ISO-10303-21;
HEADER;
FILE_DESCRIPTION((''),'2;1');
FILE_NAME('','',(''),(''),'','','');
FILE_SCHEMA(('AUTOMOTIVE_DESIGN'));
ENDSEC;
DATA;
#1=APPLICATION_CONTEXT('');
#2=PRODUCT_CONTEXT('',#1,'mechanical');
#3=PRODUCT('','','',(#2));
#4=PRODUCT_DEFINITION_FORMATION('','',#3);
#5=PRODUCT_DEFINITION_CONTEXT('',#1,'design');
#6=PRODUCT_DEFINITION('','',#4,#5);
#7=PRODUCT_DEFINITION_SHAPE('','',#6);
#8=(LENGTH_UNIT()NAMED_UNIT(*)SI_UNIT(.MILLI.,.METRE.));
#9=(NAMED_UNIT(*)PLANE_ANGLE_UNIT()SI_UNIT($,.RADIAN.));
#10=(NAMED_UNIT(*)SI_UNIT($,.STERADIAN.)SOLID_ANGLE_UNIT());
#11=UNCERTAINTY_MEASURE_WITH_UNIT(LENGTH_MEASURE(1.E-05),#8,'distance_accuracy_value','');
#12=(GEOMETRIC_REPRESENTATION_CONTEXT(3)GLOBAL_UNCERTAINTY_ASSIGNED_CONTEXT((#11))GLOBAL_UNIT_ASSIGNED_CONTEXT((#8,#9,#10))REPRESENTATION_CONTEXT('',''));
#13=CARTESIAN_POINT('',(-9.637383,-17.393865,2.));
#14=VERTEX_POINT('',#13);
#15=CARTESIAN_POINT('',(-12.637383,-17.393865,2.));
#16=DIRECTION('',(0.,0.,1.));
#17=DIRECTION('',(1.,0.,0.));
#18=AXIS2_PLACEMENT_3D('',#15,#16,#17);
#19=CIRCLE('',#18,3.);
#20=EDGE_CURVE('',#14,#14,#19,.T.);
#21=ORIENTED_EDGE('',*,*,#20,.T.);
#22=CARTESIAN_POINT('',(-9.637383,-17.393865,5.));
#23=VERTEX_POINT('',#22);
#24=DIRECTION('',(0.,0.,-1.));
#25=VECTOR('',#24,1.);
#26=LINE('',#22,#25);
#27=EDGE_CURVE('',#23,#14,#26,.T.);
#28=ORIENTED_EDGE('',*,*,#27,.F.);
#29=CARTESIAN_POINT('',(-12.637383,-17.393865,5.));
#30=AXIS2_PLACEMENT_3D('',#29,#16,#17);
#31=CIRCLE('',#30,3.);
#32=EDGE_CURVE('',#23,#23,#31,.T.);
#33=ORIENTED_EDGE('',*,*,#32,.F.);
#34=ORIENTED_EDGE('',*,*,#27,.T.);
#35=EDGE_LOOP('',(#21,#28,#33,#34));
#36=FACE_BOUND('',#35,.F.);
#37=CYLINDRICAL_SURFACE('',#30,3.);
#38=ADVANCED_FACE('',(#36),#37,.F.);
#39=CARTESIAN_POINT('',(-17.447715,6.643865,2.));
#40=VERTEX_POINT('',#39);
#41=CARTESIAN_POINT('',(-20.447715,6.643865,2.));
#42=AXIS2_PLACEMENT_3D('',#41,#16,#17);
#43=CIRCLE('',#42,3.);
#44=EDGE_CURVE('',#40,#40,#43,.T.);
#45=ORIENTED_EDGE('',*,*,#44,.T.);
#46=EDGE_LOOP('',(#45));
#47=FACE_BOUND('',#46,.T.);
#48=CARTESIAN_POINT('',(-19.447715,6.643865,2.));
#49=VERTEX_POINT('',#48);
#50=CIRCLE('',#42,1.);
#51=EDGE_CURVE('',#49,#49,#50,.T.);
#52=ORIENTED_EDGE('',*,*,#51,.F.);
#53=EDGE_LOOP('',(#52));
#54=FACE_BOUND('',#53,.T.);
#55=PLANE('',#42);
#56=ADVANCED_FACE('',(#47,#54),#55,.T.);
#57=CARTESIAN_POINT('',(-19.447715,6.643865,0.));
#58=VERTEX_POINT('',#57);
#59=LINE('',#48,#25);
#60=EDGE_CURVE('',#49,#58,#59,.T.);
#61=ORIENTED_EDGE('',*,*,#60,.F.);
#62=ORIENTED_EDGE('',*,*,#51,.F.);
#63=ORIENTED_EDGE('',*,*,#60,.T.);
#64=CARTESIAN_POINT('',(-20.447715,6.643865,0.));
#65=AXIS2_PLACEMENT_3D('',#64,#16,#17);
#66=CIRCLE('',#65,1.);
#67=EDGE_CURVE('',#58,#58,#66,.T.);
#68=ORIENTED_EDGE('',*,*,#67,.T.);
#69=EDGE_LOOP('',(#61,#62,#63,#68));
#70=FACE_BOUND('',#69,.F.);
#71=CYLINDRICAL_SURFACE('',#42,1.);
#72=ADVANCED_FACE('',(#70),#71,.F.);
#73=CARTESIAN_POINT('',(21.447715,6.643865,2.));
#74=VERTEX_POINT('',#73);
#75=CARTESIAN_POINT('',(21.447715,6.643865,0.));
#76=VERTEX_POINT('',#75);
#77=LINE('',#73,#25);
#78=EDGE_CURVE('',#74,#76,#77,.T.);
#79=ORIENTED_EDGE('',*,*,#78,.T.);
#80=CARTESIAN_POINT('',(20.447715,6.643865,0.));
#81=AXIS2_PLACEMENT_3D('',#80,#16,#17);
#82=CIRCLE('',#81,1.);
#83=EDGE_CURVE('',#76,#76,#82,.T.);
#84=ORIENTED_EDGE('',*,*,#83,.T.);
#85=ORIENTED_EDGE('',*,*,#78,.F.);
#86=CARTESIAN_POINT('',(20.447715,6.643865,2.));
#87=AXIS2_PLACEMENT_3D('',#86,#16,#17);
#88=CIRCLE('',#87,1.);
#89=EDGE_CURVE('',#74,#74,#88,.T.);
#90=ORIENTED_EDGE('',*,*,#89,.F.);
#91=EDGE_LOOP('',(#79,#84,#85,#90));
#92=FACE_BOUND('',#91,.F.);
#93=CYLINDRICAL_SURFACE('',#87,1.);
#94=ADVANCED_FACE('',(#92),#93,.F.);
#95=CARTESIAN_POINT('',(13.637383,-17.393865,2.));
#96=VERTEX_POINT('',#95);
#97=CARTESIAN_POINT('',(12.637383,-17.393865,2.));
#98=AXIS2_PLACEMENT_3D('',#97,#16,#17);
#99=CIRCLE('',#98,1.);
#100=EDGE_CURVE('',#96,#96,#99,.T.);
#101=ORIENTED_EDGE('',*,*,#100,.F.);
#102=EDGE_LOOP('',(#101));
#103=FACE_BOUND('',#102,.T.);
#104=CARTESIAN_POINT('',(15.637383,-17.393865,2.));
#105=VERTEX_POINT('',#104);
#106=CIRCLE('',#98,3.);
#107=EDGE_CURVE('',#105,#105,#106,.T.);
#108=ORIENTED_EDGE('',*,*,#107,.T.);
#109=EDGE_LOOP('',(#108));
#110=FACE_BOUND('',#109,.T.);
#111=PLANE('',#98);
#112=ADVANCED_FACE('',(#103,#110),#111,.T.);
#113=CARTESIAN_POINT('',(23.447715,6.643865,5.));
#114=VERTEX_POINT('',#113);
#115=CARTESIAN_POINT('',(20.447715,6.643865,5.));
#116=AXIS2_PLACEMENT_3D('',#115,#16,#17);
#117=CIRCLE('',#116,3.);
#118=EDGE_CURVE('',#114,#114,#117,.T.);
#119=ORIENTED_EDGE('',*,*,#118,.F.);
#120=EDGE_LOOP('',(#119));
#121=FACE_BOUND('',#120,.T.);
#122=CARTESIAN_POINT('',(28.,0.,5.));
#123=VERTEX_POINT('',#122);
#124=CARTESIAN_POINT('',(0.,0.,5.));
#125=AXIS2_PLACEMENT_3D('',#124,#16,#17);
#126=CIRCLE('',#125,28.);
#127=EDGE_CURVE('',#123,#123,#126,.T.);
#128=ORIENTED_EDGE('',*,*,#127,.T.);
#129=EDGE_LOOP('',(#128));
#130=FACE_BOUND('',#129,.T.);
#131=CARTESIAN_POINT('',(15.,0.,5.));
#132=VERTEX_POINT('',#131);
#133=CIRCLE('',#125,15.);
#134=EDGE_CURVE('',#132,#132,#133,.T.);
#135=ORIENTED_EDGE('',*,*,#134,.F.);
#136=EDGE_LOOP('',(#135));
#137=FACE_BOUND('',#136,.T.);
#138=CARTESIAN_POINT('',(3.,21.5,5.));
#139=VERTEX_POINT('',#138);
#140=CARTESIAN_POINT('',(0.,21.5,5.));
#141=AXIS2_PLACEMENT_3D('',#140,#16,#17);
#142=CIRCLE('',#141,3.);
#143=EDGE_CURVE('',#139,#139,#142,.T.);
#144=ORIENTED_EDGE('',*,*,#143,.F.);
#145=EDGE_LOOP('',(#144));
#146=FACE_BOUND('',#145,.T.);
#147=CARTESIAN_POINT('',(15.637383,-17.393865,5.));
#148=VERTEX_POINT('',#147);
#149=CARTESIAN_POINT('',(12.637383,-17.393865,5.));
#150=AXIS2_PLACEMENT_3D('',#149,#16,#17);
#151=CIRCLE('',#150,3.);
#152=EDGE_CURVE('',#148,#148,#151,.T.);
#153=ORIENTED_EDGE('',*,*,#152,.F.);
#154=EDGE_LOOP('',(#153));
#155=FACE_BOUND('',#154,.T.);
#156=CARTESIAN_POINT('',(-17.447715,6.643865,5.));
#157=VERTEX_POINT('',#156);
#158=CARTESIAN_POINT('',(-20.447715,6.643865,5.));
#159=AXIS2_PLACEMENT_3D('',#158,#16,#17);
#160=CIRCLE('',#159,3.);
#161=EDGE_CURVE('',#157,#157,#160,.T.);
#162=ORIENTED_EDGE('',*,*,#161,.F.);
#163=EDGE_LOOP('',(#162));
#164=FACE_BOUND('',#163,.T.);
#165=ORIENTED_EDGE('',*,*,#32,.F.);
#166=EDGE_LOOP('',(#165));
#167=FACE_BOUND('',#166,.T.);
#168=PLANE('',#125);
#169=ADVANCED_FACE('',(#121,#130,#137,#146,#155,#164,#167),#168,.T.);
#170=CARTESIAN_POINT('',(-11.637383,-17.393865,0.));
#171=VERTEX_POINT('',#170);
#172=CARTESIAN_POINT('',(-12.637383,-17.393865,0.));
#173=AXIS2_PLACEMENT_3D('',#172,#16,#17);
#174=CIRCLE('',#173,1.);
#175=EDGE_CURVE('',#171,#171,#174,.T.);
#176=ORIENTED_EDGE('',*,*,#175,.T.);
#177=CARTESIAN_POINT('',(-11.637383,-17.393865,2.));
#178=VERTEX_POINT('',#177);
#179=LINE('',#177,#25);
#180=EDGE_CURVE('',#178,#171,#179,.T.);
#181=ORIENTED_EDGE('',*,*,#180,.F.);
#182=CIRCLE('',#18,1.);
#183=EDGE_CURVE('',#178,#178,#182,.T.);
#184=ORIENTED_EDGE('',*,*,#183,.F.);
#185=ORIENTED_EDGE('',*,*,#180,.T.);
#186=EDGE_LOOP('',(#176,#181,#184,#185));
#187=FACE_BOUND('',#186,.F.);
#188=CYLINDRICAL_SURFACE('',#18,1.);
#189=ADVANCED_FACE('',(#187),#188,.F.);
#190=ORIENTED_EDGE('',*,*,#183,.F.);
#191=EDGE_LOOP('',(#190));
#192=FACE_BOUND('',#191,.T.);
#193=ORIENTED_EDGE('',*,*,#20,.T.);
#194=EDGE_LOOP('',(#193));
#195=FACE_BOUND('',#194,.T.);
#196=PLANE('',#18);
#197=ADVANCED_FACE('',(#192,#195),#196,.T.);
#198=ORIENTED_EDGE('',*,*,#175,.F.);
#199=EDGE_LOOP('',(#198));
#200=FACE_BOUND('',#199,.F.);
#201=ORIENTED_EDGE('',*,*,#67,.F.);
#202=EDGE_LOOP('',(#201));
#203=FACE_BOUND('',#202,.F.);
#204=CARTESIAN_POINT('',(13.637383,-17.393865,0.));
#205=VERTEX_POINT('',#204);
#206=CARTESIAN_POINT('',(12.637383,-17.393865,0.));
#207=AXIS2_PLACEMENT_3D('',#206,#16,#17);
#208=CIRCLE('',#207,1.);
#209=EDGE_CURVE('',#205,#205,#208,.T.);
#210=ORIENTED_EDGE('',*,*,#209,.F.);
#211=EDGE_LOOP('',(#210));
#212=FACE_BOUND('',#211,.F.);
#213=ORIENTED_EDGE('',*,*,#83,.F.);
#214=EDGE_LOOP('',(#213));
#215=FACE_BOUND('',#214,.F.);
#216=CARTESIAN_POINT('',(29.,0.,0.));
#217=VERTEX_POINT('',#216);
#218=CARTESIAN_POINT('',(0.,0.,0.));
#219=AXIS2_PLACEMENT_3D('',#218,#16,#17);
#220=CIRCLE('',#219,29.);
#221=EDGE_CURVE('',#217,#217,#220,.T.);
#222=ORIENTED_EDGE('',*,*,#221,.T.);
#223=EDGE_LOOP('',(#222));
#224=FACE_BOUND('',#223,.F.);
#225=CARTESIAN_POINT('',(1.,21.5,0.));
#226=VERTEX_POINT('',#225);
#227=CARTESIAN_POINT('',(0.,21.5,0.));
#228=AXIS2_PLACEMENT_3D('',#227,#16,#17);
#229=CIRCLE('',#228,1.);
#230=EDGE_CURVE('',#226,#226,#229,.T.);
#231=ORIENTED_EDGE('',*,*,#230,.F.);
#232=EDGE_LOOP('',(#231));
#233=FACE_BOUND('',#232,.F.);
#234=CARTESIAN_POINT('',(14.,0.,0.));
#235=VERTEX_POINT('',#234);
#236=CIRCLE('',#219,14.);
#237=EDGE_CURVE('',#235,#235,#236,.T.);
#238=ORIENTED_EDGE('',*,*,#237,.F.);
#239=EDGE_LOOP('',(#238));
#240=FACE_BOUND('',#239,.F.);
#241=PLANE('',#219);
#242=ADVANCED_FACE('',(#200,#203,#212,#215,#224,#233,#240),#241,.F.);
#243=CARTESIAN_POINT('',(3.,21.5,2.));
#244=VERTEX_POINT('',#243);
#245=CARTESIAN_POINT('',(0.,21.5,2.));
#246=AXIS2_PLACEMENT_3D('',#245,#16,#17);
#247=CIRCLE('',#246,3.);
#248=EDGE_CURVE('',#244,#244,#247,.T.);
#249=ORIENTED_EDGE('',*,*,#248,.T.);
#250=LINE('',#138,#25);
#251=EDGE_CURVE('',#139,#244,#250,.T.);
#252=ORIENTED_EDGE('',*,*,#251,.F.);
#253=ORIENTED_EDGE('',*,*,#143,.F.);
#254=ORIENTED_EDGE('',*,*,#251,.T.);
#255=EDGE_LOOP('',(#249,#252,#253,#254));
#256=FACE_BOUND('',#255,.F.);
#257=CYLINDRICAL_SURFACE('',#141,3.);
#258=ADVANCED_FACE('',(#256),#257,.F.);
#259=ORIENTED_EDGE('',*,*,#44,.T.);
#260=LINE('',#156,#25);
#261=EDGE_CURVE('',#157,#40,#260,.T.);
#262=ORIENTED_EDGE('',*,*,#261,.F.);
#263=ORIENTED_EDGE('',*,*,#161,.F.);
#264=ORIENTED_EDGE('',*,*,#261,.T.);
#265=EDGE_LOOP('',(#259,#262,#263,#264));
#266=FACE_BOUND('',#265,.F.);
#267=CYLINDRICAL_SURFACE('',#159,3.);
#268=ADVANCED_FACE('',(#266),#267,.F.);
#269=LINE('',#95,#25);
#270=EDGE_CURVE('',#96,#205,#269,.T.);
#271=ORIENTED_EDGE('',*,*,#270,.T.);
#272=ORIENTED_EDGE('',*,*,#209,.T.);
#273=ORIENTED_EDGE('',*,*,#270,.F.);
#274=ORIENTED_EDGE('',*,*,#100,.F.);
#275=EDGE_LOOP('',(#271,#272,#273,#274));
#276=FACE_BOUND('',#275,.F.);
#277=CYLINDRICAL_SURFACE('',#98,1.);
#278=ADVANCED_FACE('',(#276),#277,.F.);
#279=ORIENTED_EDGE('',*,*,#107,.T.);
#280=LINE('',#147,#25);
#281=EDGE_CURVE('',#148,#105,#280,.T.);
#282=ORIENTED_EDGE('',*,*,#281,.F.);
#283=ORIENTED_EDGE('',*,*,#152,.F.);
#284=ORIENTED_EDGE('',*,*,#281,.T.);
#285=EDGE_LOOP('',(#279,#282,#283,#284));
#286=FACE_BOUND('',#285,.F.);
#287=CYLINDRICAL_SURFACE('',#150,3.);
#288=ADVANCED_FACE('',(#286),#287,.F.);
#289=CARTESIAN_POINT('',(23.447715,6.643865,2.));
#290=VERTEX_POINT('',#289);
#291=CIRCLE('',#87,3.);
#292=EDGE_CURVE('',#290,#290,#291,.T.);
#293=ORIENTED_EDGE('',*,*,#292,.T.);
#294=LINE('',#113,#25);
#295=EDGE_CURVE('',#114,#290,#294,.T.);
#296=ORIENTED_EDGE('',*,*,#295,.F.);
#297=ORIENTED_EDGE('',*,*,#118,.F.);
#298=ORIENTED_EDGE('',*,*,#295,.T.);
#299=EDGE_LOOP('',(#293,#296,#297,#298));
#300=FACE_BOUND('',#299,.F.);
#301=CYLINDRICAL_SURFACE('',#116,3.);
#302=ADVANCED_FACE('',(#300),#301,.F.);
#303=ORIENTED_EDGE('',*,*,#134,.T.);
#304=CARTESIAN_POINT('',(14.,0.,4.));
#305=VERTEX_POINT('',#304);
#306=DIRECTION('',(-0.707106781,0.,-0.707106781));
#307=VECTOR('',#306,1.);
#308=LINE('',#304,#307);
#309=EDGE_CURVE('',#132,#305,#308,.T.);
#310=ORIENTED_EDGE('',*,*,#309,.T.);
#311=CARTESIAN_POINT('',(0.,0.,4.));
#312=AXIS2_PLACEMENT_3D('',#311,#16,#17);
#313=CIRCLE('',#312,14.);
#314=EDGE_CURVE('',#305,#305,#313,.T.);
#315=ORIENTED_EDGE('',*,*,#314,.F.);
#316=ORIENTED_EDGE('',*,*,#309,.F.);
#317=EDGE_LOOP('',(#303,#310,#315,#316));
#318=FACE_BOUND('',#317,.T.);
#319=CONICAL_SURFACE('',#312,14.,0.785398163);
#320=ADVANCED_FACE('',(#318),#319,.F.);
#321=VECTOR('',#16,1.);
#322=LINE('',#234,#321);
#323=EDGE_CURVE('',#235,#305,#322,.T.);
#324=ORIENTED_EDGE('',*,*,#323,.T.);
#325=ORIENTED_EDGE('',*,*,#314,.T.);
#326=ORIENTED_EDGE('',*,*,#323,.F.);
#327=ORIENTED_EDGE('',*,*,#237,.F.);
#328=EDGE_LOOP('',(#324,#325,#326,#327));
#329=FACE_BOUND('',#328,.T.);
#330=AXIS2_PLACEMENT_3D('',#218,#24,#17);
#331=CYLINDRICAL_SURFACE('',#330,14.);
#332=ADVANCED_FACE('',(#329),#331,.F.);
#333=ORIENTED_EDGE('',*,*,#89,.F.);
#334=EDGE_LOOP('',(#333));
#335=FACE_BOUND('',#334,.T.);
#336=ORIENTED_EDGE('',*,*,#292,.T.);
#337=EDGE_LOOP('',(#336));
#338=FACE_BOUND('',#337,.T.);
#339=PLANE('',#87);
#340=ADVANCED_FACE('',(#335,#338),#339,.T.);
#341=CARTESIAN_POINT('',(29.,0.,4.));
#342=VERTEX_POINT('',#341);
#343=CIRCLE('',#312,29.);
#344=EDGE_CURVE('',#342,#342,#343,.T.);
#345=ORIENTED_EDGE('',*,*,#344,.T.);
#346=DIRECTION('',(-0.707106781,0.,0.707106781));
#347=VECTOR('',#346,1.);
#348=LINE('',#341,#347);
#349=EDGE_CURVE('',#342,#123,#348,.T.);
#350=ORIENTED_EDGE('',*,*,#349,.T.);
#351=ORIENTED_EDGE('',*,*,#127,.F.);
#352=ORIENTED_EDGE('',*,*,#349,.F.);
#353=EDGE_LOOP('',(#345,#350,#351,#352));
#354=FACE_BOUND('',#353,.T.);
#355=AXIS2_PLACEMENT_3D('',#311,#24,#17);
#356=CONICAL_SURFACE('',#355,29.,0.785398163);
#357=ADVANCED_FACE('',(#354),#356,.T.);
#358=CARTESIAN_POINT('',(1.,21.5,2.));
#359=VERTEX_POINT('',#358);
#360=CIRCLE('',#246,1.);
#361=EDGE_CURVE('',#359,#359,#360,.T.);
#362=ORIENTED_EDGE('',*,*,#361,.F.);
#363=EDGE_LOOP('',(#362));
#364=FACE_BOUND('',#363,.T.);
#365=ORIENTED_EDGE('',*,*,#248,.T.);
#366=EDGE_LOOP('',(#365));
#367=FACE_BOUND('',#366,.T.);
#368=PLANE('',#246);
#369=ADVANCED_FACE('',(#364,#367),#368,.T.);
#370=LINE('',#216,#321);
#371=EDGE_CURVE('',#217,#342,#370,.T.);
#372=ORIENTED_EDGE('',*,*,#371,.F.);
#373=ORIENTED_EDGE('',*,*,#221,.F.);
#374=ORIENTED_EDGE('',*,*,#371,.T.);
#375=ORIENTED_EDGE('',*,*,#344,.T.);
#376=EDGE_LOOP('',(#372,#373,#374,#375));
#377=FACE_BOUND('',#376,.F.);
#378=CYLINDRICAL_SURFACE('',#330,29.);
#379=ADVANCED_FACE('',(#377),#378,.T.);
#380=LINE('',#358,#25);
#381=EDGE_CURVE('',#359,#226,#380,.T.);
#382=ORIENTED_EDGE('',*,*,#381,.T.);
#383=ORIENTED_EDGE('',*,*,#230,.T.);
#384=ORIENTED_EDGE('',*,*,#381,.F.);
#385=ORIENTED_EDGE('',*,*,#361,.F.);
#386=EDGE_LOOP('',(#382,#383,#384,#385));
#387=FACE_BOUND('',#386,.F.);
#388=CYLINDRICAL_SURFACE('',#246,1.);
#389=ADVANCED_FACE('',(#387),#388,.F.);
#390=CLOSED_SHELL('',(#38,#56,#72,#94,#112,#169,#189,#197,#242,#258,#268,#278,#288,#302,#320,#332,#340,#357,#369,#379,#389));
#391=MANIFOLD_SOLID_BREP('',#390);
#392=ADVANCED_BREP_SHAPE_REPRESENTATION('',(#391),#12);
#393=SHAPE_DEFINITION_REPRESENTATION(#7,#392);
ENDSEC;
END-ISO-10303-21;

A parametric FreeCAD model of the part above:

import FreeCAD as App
import Part
import Sketcher


def edges_at(feature, points):
    """Names of the edges that pass closest to the given points."""
    edges = feature.Shape.Edges
    near = lambda p: min(range(len(edges)), key=lambda i: edges[i].distToShape(Part.Vertex(*p))[0])
    return sorted({f"Edge{near(p) + 1}" for p in points})

doc = App.newDocument("Part")
body = doc.addObject("PartDesign::Body", "Body")

# Sketch on XY plane
sketch1 = body.newObject("Sketcher::SketchObject", "Sketch")
sketch1.AttachmentSupport = (doc.getObject("XY_Plane"), [""])
sketch1.MapMode = "FlatFace"
sketch1.addGeometry(Part.Circle(App.Vector(0, 0, 0), App.Vector(0, 0, 1), 29), False)
sketch1.addGeometry(Part.Circle(App.Vector(0, 0, 0), App.Vector(0, 0, 1), 14), False)
sketch1.addConstraint(Sketcher.Constraint("Coincident", 0, 3, -1, 1))
sketch1.addConstraint(Sketcher.Constraint("Coincident", 1, 3, -1, 1))
sketch1.addConstraint(Sketcher.Constraint("Diameter", 0, 58.0))
sketch1.addConstraint(Sketcher.Constraint("Diameter", 1, 28.0))
pad1 = body.newObject("PartDesign::Pad", "Pad")
pad1.Profile = sketch1
pad1.Length = 5

# Sketch on XY plane
sketch2 = body.newObject("Sketcher::SketchObject", "Sketch001")
sketch2.AttachmentSupport = (doc.getObject("XY_Plane"), [""])
sketch2.MapMode = "FlatFace"
sketch2.AttachmentOffset = App.Placement(App.Vector(0, 0, 5), App.Rotation())
sketch2.addGeometry(Part.Circle(App.Vector(0, 21.5, 0), App.Vector(0, 0, 1), 3), False)
sketch2.addGeometry(Part.Circle(App.Vector(-20.4, 6.6, 0), App.Vector(0, 0, 1), 3), False)
sketch2.addGeometry(Part.Circle(App.Vector(-12.6, -17.4, 0), App.Vector(0, 0, 1), 3), False)
sketch2.addGeometry(Part.Circle(App.Vector(12.6, -17.4, 0), App.Vector(0, 0, 1), 3), False)
sketch2.addGeometry(Part.Circle(App.Vector(20.4, 6.6, 0), App.Vector(0, 0, 1), 3), False)
sketch2.addConstraint(Sketcher.Constraint("Equal", 0, 1))
sketch2.addConstraint(Sketcher.Constraint("Equal", 1, 2))
sketch2.addConstraint(Sketcher.Constraint("Equal", 2, 3))
sketch2.addConstraint(Sketcher.Constraint("Equal", 3, 4))
sketch2.addConstraint(Sketcher.Constraint("Symmetric", 2, 3, 3, 3, -2))
sketch2.addConstraint(Sketcher.Constraint("Symmetric", 1, 3, 4, 3, -2))
sketch2.addConstraint(Sketcher.Constraint("PointOnObject", 0, 3, -2))
sketch2.addConstraint(Sketcher.Constraint("Diameter", 0, 6.0))
sketch2.addConstraint(Sketcher.Constraint("DistanceY", -1, 1, 0, 3, 21.5))
sketch2.addConstraint(Sketcher.Constraint("DistanceX", 1, 3, 3, 3, 33.085098))
sketch2.addConstraint(Sketcher.Constraint("DistanceX", 1, 3, 2, 3, 7.810332))
sketch2.addConstraint(Sketcher.Constraint("DistanceY", 2, 3, 1, 3, 24.03773))
sketch2.addConstraint(Sketcher.Constraint("DistanceY", -1, 1, 1, 3, 6.643865))
pocket1 = body.newObject("PartDesign::Pocket", "Pocket")
pocket1.Profile = sketch2
pocket1.Length = 3

# Sketch on XY plane
sketch3 = body.newObject("Sketcher::SketchObject", "Sketch002")
sketch3.AttachmentSupport = (doc.getObject("XY_Plane"), [""])
sketch3.MapMode = "FlatFace"
sketch3.AttachmentOffset = App.Placement(App.Vector(0, 0, 2), App.Rotation())
sketch3.addGeometry(Part.Circle(App.Vector(0, 21.5, 0), App.Vector(0, 0, 1), 1), False)
sketch3.addGeometry(Part.Circle(App.Vector(-20.4, 6.6, 0), App.Vector(0, 0, 1), 1), False)
sketch3.addGeometry(Part.Circle(App.Vector(-12.6, -17.4, 0), App.Vector(0, 0, 1), 1), False)
sketch3.addGeometry(Part.Circle(App.Vector(12.6, -17.4, 0), App.Vector(0, 0, 1), 1), False)
sketch3.addGeometry(Part.Circle(App.Vector(20.4, 6.6, 0), App.Vector(0, 0, 1), 1), False)
sketch3.addConstraint(Sketcher.Constraint("Equal", 0, 1))
sketch3.addConstraint(Sketcher.Constraint("Equal", 1, 2))
sketch3.addConstraint(Sketcher.Constraint("Equal", 2, 3))
sketch3.addConstraint(Sketcher.Constraint("Equal", 3, 4))
sketch3.addConstraint(Sketcher.Constraint("Symmetric", 2, 3, 3, 3, -2))
sketch3.addConstraint(Sketcher.Constraint("Symmetric", 1, 3, 4, 3, -2))
sketch3.addConstraint(Sketcher.Constraint("PointOnObject", 0, 3, -2))
sketch3.addConstraint(Sketcher.Constraint("Diameter", 0, 2.0))
sketch3.addConstraint(Sketcher.Constraint("DistanceY", -1, 1, 0, 3, 21.5))
sketch3.addConstraint(Sketcher.Constraint("DistanceX", 1, 3, 3, 3, 33.085098))
sketch3.addConstraint(Sketcher.Constraint("DistanceX", 1, 3, 2, 3, 7.810332))
sketch3.addConstraint(Sketcher.Constraint("DistanceY", 2, 3, 1, 3, 24.03773))
sketch3.addConstraint(Sketcher.Constraint("DistanceY", -1, 1, 1, 3, 6.643865))
pocket2 = body.newObject("PartDesign::Pocket", "Pocket001")
pocket2.Profile = sketch3
pocket2.Length = 3
doc.recompute()

chamfer = body.newObject("PartDesign::Chamfer", "Chamfer")
chamfer.Base = (pocket2, edges_at(pocket2, [(-29, 0, 5), (-14, 0, 5)]))
chamfer.Size = 1

doc.recompute()
